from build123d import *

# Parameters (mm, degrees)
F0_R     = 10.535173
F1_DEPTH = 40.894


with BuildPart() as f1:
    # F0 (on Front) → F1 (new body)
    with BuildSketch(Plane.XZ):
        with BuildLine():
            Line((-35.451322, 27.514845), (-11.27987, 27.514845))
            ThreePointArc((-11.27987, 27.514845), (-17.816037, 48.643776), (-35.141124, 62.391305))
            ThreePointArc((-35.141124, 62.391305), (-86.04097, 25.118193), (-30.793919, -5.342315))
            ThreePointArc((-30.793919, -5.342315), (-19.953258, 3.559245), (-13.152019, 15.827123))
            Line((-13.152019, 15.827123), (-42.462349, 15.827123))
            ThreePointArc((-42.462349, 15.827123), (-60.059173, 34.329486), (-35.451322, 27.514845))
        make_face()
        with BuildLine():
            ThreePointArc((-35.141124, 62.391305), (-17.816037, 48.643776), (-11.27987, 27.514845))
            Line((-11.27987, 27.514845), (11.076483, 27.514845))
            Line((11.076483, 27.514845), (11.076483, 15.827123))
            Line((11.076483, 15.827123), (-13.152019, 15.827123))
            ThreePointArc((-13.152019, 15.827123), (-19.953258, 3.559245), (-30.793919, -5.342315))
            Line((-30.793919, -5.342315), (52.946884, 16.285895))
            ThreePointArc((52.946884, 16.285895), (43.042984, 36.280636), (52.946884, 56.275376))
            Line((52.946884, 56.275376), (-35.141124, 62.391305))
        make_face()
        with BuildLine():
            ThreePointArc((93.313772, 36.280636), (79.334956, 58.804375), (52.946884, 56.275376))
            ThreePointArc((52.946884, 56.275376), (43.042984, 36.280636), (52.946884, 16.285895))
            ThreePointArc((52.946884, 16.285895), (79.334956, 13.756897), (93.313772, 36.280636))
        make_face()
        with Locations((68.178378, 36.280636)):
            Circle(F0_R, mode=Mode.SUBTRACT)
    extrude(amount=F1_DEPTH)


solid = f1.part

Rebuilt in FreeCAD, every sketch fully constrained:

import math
import FreeCAD as App
import Part
import Sketcher
from FreeCAD import Vector
Q = App.Units.Quantity

doc = App.newDocument("Part")
body = doc.addObject("PartDesign::Body", "Body")

# Sketch on XZ plane
sketch1 = doc.addObject("Sketcher::SketchObject", "Sketch")
body.addObject(sketch1)
sketch1.AttachmentSupport = (doc.XZ_Plane, [""])
sketch1.MapMode = "FlatFace"
sketch1.addGeometry([
    Part.ArcOfCircle(Part.Circle(Vector(-48.698835, 27.514845, 0), Vector(0, 0, 1), 37.418966), math.radians(68.757139), math.radians(298.587378)),  # 0
    Part.LineSegment(Vector(-30.793919, -5.342315, 0), Vector(52.946884, 16.285895, 0)),  # 1
    Part.ArcOfCircle(Part.Circle(Vector(68.178377, 36.280636, 0), Vector(0, 0, 1), 25.135395), math.radians(-127.299243), math.radians(0)),  # 2
    Part.ArcOfCircle(Part.Circle(Vector(68.178378, 36.280637, 0), Vector(0, 0, 1), 25.135394), math.radians(-0.000001), math.radians(127.299247)),  # 3
    Part.LineSegment(Vector(52.946884, 56.275376, 0), Vector(-35.141124, 62.391305, 0)),  # 4
    Part.LineSegment(Vector(-35.451322, 27.514845, 0), Vector(11.076483, 27.514845, 0)),  # 5
    Part.LineSegment(Vector(11.076483, 27.514845, 0), Vector(11.076483, 15.827123, 0)),  # 6
    Part.LineSegment(Vector(11.076483, 15.827123, 0), Vector(-42.462349, 15.827123, 0)),  # 7
    Part.ArcOfCircle(Part.Circle(Vector(-48.698835, 27.514845, 0), Vector(0, 0, 1), 13.247513), math.radians(0), math.radians(298.084067)),  # 8
    Part.Circle(Vector(68.178378, 36.280636, 0), Vector(0, 0, 1), 10.535173),  # 9
], False)
sketch1.addConstraint([
    Sketcher.Constraint("Coincident", 0, 2, 1, 1),
    Sketcher.Constraint("Coincident", 1, 2, 2, 1),
    Sketcher.Constraint("Tangent", 2, 2, 3, 1),
    Sketcher.Constraint("Coincident", 3, 2, 4, 1),
    Sketcher.Constraint("Coincident", 4, 2, 0, 1),
    Sketcher.Constraint("Coincident", 5, 2, 6, 1),
    Sketcher.Constraint("Coincident", 6, 2, 7, 1),
    Sketcher.Constraint("Coincident", 7, 2, 8, 2),
    Sketcher.Constraint("Coincident", 8, 1, 5, 1),
    Sketcher.Constraint("Horizontal", 5),
    Sketcher.Constraint("Vertical", 6),
    Sketcher.Constraint("Horizontal", 7),
    Sketcher.Constraint("Coincident", 8, 3, 0, 3),
    Sketcher.Constraint("Coincident", 9, 3, 2, 3),
    Sketcher.Constraint("Equal", 2, 3),
    Sketcher.Constraint("Horizontal", 9, 3, 2, 2),
    Sketcher.Constraint("Horizontal", 8, 3, 5, 2),
    Sketcher.Constraint("Vertical", 1, 2, 3, 2),
    Sketcher.Constraint("Diameter", 9, Q("21.070346 mm")),
    Sketcher.Constraint("Radius", 0, Q("37.418966 mm")),
    Sketcher.Constraint("Radius", 2, Q("25.135395 mm")),
    Sketcher.Constraint("Radius", 8, Q("13.247513 mm")),
    Sketcher.Constraint("DistanceX", 0, 3, 1, 2, Q("4.0018 in")),
    Sketcher.Constraint("DistanceX", 5, 2, 1, 2, Q("41.870401 mm")),
    Sketcher.Constraint("DistanceX", 0, 2, 5, 2, Q("41.870402 mm")),
    Sketcher.Constraint("DistanceX", 8, 1, 4, 2, Q("0.310198 mm")),
    Sketcher.Constraint("DistanceX", 7, 2, 7, 1, Q("53.538832 mm")),
    Sketcher.Constraint("DistanceX", -1, 1, 3, 3, Q("68.178378 mm")),
    Sketcher.Constraint("DistanceX", 0, 2, -1, 1, Q("30.793919 mm")),
    Sketcher.Constraint("DistanceY", 0, 3, 2, 3, Q("8.765791 mm")),
    Sketcher.Constraint("DistanceY", -1, 1, 0, 3, Q("27.514845 mm")),
])
pad1 = doc.addObject("PartDesign::Pad", "Pad")
body.addObject(pad1)
pad1.Profile = sketch1
pad1.Length = Q("1.61 in")

doc.recompute()
